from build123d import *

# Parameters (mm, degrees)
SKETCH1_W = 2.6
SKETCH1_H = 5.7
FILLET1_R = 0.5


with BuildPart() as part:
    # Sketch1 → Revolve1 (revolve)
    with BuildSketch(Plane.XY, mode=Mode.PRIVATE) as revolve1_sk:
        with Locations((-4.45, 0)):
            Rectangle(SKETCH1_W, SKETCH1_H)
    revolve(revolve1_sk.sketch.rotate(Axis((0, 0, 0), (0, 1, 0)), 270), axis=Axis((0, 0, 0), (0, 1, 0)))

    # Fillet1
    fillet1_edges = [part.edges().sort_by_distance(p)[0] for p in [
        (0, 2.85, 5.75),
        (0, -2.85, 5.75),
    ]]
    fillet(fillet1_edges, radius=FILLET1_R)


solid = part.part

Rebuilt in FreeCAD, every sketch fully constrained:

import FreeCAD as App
import Part
import Sketcher


def edges_at(feature, points):
    """Names of the edges that pass closest to the given points."""
    edges = feature.Shape.Edges
    near = lambda p: min(range(len(edges)), key=lambda i: edges[i].distToShape(Part.Vertex(*p))[0])
    return sorted({f"Edge{near(p) + 1}" for p in points})


def add_polygon(sketch, points):
    """Adds a closed chain of lines whose ends are joined by coincident constraints."""
    first, n = sketch.GeometryCount, len(points)
    for a, b in zip(points, points[1:] + points[:1]):
        sketch.addGeometry(Part.LineSegment(App.Vector(*a, 0), App.Vector(*b, 0)), False)
    for i in range(n):
        sketch.addConstraint(Sketcher.Constraint("Coincident", first + i, 2, first + (i + 1) % n, 1))

doc = App.newDocument("Part")
body = doc.addObject("PartDesign::Body", "Body")

sketch1 = doc.addObject("Sketcher::SketchObject", "Sketch")
body.addObject(sketch1)
sketch1.AttachmentSupport = (doc.XY_Plane, [""])
sketch1.MapMode = "FlatFace"
add_polygon(sketch1, [(-5.75, 2.85), (-5.75, -2.85), (-3.15, -2.85), (-3.15, 2.85)])
sketch1.addConstraint([
    Sketcher.Constraint("Vertical", 0),
    Sketcher.Constraint("Horizontal", 1),
    Sketcher.Constraint("Vertical", 2),
    Sketcher.Constraint("Horizontal", 3),
    Sketcher.Constraint("DistanceX", 1, 1, 1, 2, 2.6),
    Sketcher.Constraint("DistanceY", 0, 2, 0, 1, 5.7),
    Sketcher.Constraint("DistanceX", 0, 2, -1, 1, 5.75),
    Sketcher.Constraint("DistanceY", 0, 2, -1, 1, 2.85),
])
revolution = doc.addObject("PartDesign::Revolution", "Revolution")
body.addObject(revolution)
revolution.Profile = sketch1
revolution.ReferenceAxis = (sketch1, ["V_Axis"])
revolution.Angle = 360
doc.recompute()

fillet = doc.addObject("PartDesign::Fillet", "Fillet")
body.addObject(fillet)
fillet.Base = (revolution, edges_at(revolution, [(0, 2.85, 5.75), (0, -2.85, 5.75)]))
fillet.Radius = 0.5

doc.recompute()
